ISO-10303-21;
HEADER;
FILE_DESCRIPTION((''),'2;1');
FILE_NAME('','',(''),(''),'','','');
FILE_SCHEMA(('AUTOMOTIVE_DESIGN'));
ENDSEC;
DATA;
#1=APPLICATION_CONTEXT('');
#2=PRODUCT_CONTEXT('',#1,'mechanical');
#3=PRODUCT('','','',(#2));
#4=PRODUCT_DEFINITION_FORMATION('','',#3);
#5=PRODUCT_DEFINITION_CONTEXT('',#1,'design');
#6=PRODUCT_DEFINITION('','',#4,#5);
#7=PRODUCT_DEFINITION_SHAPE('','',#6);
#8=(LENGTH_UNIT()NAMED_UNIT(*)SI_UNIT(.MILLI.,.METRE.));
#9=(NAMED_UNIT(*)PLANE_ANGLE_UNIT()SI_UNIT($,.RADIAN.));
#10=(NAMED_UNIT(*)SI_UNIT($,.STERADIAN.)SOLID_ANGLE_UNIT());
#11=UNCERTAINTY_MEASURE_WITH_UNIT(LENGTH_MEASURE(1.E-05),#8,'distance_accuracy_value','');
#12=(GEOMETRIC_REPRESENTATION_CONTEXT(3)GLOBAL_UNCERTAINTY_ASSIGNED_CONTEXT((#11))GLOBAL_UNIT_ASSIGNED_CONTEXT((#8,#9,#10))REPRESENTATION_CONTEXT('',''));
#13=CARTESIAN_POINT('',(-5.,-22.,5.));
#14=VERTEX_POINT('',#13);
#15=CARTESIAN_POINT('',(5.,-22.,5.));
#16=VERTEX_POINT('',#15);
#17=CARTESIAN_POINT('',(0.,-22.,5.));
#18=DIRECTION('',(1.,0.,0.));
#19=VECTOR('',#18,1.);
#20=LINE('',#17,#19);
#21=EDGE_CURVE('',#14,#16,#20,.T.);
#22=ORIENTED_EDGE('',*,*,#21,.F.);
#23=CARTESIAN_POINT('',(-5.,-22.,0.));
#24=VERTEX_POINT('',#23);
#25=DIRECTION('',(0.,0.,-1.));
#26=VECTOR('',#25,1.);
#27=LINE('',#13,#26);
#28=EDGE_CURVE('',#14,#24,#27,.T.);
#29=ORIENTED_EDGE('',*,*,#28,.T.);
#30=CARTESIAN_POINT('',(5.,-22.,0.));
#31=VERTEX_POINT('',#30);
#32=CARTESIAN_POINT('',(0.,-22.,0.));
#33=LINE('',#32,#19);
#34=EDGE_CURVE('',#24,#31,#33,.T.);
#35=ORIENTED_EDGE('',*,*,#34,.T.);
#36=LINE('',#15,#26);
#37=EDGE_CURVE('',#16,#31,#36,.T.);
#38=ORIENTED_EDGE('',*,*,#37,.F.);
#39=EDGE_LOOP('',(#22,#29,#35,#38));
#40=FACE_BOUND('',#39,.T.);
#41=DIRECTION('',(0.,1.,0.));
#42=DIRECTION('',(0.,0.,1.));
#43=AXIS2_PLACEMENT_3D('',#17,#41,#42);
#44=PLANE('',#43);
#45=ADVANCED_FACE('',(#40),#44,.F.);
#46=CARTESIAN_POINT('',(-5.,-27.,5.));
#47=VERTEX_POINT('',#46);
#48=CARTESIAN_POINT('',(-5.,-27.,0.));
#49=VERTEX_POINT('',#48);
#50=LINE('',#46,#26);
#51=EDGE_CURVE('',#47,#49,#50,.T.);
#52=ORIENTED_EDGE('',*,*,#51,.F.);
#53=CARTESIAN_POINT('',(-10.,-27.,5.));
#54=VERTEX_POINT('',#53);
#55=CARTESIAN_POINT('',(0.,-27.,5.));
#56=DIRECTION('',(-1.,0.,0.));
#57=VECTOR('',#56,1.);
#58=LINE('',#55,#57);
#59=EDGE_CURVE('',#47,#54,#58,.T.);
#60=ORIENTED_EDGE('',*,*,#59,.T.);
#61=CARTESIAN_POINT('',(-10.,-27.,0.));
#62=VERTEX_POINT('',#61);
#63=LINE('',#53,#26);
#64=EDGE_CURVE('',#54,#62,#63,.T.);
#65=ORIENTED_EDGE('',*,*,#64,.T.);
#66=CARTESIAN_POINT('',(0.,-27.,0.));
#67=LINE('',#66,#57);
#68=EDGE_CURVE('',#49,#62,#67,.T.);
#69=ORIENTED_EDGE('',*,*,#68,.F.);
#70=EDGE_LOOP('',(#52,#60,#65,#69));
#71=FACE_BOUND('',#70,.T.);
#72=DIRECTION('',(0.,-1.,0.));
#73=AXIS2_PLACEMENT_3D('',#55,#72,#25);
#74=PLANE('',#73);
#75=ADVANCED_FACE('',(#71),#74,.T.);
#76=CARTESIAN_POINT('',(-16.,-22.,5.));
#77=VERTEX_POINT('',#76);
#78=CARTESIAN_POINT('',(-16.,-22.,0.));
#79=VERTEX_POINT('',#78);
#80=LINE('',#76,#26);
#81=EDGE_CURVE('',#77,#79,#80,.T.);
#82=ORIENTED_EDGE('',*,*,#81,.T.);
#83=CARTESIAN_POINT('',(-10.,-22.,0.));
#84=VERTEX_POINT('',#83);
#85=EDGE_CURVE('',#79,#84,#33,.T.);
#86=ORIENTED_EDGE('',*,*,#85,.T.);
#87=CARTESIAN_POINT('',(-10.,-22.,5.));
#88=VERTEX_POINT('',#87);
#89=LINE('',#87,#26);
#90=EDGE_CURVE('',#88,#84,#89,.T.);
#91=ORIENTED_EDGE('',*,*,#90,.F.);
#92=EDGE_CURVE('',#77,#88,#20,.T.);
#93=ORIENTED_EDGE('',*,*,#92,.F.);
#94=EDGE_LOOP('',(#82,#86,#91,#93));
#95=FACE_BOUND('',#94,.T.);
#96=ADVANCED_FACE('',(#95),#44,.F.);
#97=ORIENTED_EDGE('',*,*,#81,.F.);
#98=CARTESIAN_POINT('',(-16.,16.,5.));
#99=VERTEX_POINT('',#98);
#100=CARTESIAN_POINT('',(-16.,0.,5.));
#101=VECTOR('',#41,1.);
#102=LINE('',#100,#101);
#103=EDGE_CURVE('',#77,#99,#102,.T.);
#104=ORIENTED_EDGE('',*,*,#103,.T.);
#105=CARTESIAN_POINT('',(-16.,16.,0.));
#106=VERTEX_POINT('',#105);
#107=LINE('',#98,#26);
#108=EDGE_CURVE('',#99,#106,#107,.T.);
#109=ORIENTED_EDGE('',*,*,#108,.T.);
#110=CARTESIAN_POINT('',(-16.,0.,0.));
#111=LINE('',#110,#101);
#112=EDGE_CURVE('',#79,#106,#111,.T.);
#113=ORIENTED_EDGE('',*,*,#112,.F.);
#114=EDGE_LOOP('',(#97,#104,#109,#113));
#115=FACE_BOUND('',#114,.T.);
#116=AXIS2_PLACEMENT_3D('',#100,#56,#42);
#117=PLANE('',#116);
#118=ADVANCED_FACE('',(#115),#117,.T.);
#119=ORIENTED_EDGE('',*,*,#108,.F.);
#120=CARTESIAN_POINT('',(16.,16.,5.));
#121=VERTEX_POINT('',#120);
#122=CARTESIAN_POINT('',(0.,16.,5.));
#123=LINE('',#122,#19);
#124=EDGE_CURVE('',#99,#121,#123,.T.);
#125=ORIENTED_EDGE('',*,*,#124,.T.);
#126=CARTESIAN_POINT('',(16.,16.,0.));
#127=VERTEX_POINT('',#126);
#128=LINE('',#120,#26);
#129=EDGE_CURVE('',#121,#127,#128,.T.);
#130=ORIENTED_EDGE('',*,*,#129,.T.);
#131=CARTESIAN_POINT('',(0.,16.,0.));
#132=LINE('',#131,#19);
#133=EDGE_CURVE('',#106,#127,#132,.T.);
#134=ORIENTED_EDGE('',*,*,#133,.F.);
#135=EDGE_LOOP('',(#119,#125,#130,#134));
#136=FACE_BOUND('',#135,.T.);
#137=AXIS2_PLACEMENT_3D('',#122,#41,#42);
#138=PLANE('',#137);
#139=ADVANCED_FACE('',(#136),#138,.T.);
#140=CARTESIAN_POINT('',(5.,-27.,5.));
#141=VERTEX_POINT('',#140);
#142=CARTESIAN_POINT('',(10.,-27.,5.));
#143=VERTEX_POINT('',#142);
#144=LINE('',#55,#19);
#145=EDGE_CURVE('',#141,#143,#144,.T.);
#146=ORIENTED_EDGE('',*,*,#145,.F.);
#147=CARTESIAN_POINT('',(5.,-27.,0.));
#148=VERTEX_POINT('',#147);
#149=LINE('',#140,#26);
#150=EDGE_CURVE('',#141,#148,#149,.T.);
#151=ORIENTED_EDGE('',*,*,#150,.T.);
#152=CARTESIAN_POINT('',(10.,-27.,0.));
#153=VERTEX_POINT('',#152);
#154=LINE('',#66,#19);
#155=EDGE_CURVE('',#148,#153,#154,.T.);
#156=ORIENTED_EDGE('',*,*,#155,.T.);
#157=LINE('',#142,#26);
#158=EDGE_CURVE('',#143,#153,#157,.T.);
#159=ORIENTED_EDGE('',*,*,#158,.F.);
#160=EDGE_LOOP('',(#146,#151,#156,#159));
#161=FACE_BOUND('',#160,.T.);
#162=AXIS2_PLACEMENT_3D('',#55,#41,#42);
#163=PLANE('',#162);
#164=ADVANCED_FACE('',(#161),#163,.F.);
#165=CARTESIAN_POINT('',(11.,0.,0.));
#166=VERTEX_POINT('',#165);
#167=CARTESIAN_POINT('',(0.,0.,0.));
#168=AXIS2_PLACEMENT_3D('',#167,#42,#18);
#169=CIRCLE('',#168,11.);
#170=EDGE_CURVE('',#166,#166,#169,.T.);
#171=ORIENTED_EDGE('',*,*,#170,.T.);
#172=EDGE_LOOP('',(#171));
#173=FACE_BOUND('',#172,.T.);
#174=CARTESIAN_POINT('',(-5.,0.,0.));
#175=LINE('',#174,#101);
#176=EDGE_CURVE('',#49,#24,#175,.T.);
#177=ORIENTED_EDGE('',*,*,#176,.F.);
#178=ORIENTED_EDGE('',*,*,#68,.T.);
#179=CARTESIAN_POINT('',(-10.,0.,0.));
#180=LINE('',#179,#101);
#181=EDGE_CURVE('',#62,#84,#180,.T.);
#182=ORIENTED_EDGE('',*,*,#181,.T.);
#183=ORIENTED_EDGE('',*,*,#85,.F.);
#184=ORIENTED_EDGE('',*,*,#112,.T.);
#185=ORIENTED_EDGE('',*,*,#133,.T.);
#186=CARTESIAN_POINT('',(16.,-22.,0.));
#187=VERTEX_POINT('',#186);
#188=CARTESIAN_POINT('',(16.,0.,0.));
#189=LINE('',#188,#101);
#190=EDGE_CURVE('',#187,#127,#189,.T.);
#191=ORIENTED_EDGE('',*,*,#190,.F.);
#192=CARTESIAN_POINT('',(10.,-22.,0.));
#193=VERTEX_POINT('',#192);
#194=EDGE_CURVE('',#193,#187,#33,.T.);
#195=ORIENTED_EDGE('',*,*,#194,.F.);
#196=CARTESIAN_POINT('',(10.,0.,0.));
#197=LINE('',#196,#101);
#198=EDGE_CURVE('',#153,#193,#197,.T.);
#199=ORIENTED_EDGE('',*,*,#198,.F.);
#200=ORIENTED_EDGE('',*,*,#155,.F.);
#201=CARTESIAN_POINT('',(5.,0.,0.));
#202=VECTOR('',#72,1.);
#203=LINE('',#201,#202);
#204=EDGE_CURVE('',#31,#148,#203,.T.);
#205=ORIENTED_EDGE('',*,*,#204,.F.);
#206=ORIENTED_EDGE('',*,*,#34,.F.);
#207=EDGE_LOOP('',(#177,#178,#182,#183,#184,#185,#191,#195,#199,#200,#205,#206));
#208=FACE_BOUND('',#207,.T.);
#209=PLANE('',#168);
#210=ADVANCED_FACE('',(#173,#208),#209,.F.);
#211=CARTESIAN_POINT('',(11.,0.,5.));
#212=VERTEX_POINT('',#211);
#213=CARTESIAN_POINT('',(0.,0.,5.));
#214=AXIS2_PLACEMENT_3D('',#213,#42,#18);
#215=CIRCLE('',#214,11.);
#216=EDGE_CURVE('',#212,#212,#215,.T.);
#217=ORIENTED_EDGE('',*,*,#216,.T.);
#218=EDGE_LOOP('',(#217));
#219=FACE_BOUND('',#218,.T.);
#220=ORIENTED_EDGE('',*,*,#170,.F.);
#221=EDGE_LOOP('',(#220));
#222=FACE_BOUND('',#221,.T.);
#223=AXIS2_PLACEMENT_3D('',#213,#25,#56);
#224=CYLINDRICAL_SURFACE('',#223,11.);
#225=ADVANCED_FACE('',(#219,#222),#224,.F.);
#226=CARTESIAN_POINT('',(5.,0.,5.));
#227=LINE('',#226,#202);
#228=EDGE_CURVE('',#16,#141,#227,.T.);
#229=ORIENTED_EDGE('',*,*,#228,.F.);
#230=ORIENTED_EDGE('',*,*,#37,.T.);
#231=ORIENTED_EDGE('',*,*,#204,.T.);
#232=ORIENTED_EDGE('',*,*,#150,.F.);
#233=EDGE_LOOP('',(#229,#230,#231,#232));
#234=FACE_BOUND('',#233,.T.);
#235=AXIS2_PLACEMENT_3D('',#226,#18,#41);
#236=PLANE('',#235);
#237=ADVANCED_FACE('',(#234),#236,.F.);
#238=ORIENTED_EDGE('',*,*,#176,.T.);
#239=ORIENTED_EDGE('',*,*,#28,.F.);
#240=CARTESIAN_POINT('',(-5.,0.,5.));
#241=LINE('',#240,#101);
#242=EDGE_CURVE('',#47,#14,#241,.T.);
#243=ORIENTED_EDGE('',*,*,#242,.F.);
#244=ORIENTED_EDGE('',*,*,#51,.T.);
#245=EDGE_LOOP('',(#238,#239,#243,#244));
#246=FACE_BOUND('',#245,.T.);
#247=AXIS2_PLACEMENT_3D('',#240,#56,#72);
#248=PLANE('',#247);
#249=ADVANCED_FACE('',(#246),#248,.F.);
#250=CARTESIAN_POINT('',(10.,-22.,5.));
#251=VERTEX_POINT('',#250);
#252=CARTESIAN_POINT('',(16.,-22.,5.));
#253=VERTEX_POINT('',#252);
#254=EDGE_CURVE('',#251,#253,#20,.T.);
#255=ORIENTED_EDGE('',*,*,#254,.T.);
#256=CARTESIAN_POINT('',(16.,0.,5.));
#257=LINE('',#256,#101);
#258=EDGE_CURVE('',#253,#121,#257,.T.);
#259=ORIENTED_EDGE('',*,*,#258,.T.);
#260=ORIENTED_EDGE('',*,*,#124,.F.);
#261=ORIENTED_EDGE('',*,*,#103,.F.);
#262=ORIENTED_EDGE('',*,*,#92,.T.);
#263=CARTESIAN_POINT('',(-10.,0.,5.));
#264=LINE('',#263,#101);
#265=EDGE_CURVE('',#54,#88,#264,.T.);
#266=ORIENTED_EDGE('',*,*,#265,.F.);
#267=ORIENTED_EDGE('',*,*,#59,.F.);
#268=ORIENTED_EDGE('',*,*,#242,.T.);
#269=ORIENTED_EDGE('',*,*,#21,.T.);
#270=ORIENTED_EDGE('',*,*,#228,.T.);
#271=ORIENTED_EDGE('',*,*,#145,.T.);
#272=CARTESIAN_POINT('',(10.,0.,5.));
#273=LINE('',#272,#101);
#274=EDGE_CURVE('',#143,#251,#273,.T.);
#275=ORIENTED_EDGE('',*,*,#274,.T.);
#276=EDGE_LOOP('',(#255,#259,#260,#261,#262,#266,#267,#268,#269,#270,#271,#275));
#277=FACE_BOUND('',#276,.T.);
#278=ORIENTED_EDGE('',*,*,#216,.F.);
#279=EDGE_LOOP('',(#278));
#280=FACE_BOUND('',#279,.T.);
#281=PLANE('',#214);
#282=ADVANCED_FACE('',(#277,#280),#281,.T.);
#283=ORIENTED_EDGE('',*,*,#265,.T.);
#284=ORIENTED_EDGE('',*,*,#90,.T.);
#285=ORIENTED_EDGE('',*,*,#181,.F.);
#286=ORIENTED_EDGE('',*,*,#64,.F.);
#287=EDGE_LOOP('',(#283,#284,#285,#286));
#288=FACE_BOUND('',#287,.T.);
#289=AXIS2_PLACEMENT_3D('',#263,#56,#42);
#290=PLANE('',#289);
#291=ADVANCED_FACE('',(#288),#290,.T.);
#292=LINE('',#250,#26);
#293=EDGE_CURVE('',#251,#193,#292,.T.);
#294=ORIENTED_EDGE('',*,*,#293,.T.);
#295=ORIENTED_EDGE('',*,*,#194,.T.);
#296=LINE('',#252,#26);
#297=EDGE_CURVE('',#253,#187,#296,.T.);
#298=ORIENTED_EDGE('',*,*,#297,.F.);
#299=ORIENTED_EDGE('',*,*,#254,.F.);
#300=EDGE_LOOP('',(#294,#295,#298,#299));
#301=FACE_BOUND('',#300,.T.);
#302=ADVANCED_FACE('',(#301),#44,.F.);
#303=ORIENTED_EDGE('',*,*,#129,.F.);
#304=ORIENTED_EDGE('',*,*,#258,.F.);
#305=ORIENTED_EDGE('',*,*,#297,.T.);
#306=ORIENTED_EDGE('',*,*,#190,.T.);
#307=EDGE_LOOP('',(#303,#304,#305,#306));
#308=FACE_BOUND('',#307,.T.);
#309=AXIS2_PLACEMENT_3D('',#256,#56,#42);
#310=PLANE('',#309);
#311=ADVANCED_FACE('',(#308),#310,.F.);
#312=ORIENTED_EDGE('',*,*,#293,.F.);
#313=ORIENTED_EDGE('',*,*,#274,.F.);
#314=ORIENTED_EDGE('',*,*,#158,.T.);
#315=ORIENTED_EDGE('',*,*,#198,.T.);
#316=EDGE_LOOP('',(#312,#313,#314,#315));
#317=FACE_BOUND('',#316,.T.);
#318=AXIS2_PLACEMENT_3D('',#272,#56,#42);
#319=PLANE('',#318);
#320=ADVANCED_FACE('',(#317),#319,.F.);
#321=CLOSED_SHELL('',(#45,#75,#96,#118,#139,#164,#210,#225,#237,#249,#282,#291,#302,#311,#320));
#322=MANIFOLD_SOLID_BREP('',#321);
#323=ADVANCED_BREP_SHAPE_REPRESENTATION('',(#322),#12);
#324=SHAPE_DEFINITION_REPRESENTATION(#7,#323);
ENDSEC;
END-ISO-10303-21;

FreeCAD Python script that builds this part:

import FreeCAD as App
import Part
import Sketcher
Q = App.Units.Quantity


def add_polygon(sketch, points):
    """Adds a closed chain of lines whose ends are joined by coincident constraints."""
    first, n = sketch.GeometryCount, len(points)
    for a, b in zip(points, points[1:] + points[:1]):
        sketch.addGeometry(Part.LineSegment(App.Vector(*a, 0), App.Vector(*b, 0)), False)
    for i in range(n):
        sketch.addConstraint(Sketcher.Constraint("Coincident", first + i, 2, first + (i + 1) % n, 1))

doc = App.newDocument("Part")
body = doc.addObject("PartDesign::Body", "Body")

sketch1 = body.newObject("Sketcher::SketchObject", "Sketch")
sketch1.AttachmentSupport = (doc.getObject("XY_Plane"), [""])
sketch1.MapMode = "FlatFace"
add_polygon(sketch1, [(5, -22), (5, -27), (10, -27), (10, -22), (16, -22), (16, 16), (-16, 16), (-16, -22), (-10, -22), (-10, -27), (-5, -27), (-5, -22)])
sketch1.addGeometry(Part.Circle(App.Vector(0, 0, 0), App.Vector(0, 0, 1), 11), False)
sketch1.addConstraint([
    Sketcher.Constraint("Vertical", 0),
    Sketcher.Constraint("Horizontal", 1),
    Sketcher.Constraint("Vertical", 2),
    Sketcher.Constraint("Horizontal", 3),
    Sketcher.Constraint("Vertical", 4),
    Sketcher.Constraint("Horizontal", 5),
    Sketcher.Constraint("Vertical", 6),
    Sketcher.Constraint("Horizontal", 7),
    Sketcher.Constraint("Vertical", 8),
    Sketcher.Constraint("Horizontal", 9),
    Sketcher.Constraint("Vertical", 10),
    Sketcher.Constraint("Horizontal", 11),
    Sketcher.Constraint("Coincident", 12, 3, -1, 1),
    Sketcher.Constraint("Symmetric", 3, 2, 6, 2, -2),
    Sketcher.Constraint("Symmetric", 1, 2, 8, 2, -2),
    Sketcher.Constraint("Horizontal", 7, 2, 10, 2),
    Sketcher.Constraint("Equal", 1, 9),
    Sketcher.Constraint("Equal", 9, 0),
    Sketcher.Constraint("Diameter", 12, Q("22 mm")),
    Sketcher.Constraint("DistanceX", 1, 1, 1, 2, Q("5 mm")),
    Sketcher.Constraint("DistanceX", 3, 1, 3, 2, Q("6 mm")),
    Sketcher.Constraint("DistanceX", 5, 2, 5, 1, Q("32 mm")),
    Sketcher.Constraint("DistanceY", 4, 1, 4, 2, Q("38 mm")),
    Sketcher.Constraint("DistanceY", 0, 2, -1, 1, Q("27 mm")),
])
pad1 = body.newObject("PartDesign::Pad", "Pad")
pad1.Profile = sketch1
pad1.Length = 5

doc.recompute()
